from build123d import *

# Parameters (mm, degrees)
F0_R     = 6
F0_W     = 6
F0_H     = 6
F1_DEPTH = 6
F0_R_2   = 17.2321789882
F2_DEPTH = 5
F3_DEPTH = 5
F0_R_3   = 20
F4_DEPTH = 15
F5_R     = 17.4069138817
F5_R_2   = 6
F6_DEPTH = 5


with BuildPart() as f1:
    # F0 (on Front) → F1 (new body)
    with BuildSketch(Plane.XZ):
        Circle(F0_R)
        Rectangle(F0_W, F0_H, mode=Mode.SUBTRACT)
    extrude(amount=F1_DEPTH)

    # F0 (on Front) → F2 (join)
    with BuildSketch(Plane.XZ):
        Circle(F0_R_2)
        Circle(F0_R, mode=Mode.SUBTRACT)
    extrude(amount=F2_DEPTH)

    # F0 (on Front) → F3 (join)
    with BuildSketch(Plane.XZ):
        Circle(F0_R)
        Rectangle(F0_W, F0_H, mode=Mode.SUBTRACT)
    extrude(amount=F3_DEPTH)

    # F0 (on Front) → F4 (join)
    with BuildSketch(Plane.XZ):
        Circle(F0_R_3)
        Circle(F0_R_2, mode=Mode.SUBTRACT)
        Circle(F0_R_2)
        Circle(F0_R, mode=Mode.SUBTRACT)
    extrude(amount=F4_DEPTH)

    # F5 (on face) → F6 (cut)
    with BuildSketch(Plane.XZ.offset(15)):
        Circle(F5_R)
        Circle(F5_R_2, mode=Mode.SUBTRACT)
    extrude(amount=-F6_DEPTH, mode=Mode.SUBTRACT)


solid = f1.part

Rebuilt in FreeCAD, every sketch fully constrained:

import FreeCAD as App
import Part
import Sketcher

V = App.Vector
Q = App.Units.Quantity

doc = App.newDocument("Part")
params = doc.addObject("Spreadsheet::Sheet", "Params")
for row, (alias, value) in enumerate([
    ("sketch1_diameter", "12 mm"),
    ("sketch1_width", "6 mm"),
    ("pad1_length", "6 mm"),
    ("sketch2_diameter", "12 mm"),
    ("pad2_length", "5 mm"),
    ("sketch3_diameter", "12 mm"),
    ("sketch3_width", "6 mm"),
    ("pad3_length", "5 mm"),
    ("sketch4_diameter", "40 mm"),
    ("sketch4_diameter2", "12 mm"),
    ("pad4_length", "15 mm"),
    ("sketch5_diameter", "12 mm"),
    ("pocket1_length", "5 mm"),
], start=1):
    params.set(f"A{row}", alias)
    params.set(f"B{row}", "=" + value)
    params.setAlias(f"B{row}", alias)

body = doc.addObject("PartDesign::Body", "Body")

sketch1 = body.newObject("Sketcher::SketchObject", "Sketch")
sketch1.AttachmentSupport = (doc.getObject("XZ_Plane"), [""])
sketch1.MapMode = "FlatFace"
sketch1.addGeometry([
    Part.Circle(V(0, 0, 0), V(0, 0, 1), 6),
    Part.LineSegment(V(3, -3, 0), V(-3, -3, 0)),
    Part.LineSegment(V(-3, -3, 0), V(-3, 3, 0)),
    Part.LineSegment(V(-3, 3, 0), V(3, 3, 0)),
    Part.LineSegment(V(3, 3, 0), V(3, -3, 0)),
], False)
sketch1.addConstraint([
    Sketcher.Constraint("Coincident", 1, 2, 2, 1),
    Sketcher.Constraint("Coincident", 2, 2, 3, 1),
    Sketcher.Constraint("Coincident", 3, 2, 4, 1),
    Sketcher.Constraint("Coincident", 4, 2, 1, 1),
    Sketcher.Constraint("Horizontal", 1),
    Sketcher.Constraint("Vertical", 2),
    Sketcher.Constraint("Horizontal", 3),
    Sketcher.Constraint("Vertical", 4),
    Sketcher.Constraint("Coincident", 0, 3, -1, 1),
    Sketcher.Constraint("Symmetric", 1, 2, 3, 2, -1, 1),
    Sketcher.Constraint("Equal", 3, 2),
    Sketcher.Constraint("Diameter", 0, Q("12 mm")),
    Sketcher.Constraint("DistanceX", 1, 2, 1, 1, Q("6 mm")),
])
sketch1.setExpression("Constraints[11]", "Params.sketch1_diameter")
sketch1.setExpression("Constraints[12]", "Params.sketch1_width")
pad1 = body.newObject("PartDesign::Pad", "Pad")
pad1.Profile = sketch1
pad1.setExpression("Length", "Params.pad1_length")

sketch2 = body.newObject("Sketcher::SketchObject", "Sketch001")
sketch2.AttachmentSupport = (doc.getObject("XZ_Plane"), [""])
sketch2.MapMode = "FlatFace"
sketch2.addGeometry([
    Part.Circle(V(0, 0, 0), V(0, 0, 1), 17),
    Part.Circle(V(0, 0, 0), V(0, 0, 1), 6),
], False)
sketch2.addConstraint([
    Sketcher.Constraint("Coincident", 0, 3, -1, 1),
    Sketcher.Constraint("Coincident", 1, 3, -1, 1),
    Sketcher.Constraint("Diameter", 1, Q("12 mm")),
    Sketcher.Constraint("Diameter", 0, Q("34.464358 mm")),
])
sketch2.setExpression("Constraints[2]", "Params.sketch2_diameter")
pad2 = body.newObject("PartDesign::Pad", "Pad001")
pad2.Profile = sketch2
pad2.setExpression("Length", "Params.pad2_length")

sketch3 = body.newObject("Sketcher::SketchObject", "Sketch002")
sketch3.AttachmentSupport = (doc.getObject("XZ_Plane"), [""])
sketch3.MapMode = "FlatFace"
sketch3.addGeometry([
    Part.Circle(V(0, 0, 0), V(0, 0, 1), 6),
    Part.LineSegment(V(3, -3, 0), V(-3, -3, 0)),
    Part.LineSegment(V(-3, -3, 0), V(-3, 3, 0)),
    Part.LineSegment(V(-3, 3, 0), V(3, 3, 0)),
    Part.LineSegment(V(3, 3, 0), V(3, -3, 0)),
], False)
sketch3.addConstraint([
    Sketcher.Constraint("Coincident", 1, 2, 2, 1),
    Sketcher.Constraint("Coincident", 2, 2, 3, 1),
    Sketcher.Constraint("Coincident", 3, 2, 4, 1),
    Sketcher.Constraint("Coincident", 4, 2, 1, 1),
    Sketcher.Constraint("Horizontal", 1),
    Sketcher.Constraint("Vertical", 2),
    Sketcher.Constraint("Horizontal", 3),
    Sketcher.Constraint("Vertical", 4),
    Sketcher.Constraint("Coincident", 0, 3, -1, 1),
    Sketcher.Constraint("Symmetric", 1, 2, 3, 2, -1, 1),
    Sketcher.Constraint("Equal", 3, 2),
    Sketcher.Constraint("Diameter", 0, Q("12 mm")),
    Sketcher.Constraint("DistanceX", 1, 2, 1, 1, Q("6 mm")),
])
sketch3.setExpression("Constraints[11]", "Params.sketch3_diameter")
sketch3.setExpression("Constraints[12]", "Params.sketch3_width")
pad3 = body.newObject("PartDesign::Pad", "Pad002")
pad3.Profile = sketch3
pad3.setExpression("Length", "Params.pad3_length")

sketch4 = body.newObject("Sketcher::SketchObject", "Sketch003")
sketch4.AttachmentSupport = (doc.getObject("XZ_Plane"), [""])
sketch4.MapMode = "FlatFace"
sketch4.addGeometry([
    Part.Circle(V(0, 0, 0), V(0, 0, 1), 20),
    Part.Circle(V(0, 0, 0), V(0, 0, 1), 6),
], False)
sketch4.addConstraint([
    Sketcher.Constraint("Coincident", 0, 3, -1, 1),
    Sketcher.Constraint("Coincident", 1, 3, -1, 1),
    Sketcher.Constraint("Diameter", 0, Q("40 mm")),
    Sketcher.Constraint("Diameter", 1, Q("12 mm")),
])
sketch4.setExpression("Constraints[2]", "Params.sketch4_diameter")
sketch4.setExpression("Constraints[3]", "Params.sketch4_diameter2")
pad4 = body.newObject("PartDesign::Pad", "Pad003")
pad4.Profile = sketch4
pad4.setExpression("Length", "Params.pad4_length")

sketch5 = body.newObject("Sketcher::SketchObject", "Sketch004")
sketch5.AttachmentSupport = (doc.getObject("XZ_Plane"), [""])
sketch5.MapMode = "FlatFace"
sketch5.AttachmentOffset = App.Placement(V(0, 0, 15), App.Rotation())
sketch5.addGeometry([
    Part.Circle(V(0, 0, 0), V(0, 0, 1), 17),
    Part.Circle(V(0, 0, 0), V(0, 0, 1), 6),
], False)
sketch5.addConstraint([
    Sketcher.Constraint("Coincident", 0, 3, -1, 1),
    Sketcher.Constraint("Coincident", 1, 3, -1, 1),
    Sketcher.Constraint("Diameter", 1, Q("12 mm")),
    Sketcher.Constraint("Diameter", 0, Q("34.813828 mm")),
])
sketch5.setExpression("Constraints[2]", "Params.sketch5_diameter")
pocket1 = body.newObject("PartDesign::Pocket", "Pocket")
pocket1.Profile = sketch5
pocket1.setExpression("Length", "Params.pocket1_length")

doc.recompute()
